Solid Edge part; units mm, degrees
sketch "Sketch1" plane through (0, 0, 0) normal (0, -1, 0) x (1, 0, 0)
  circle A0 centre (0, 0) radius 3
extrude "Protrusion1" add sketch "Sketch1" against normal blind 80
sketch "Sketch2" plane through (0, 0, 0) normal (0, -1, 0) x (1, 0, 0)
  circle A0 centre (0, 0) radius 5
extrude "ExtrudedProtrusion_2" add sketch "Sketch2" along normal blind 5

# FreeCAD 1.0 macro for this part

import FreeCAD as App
import Part
import Sketcher

V = App.Vector

doc = App.newDocument("Part")
body = doc.addObject("PartDesign::Body", "Body")

# Sketch on XZ plane
sketch1 = body.newObject("Sketcher::SketchObject", "Sketch")
sketch1.AttachmentSupport = (doc.getObject("XZ_Plane"), [""])
sketch1.MapMode = "FlatFace"
sketch1.addGeometry(Part.Circle(V(0, 0, 0), V(0, 0, 1), 3), False)
sketch1.addConstraint(Sketcher.Constraint("Coincident", 0, 3, -1, 1))
sketch1.addConstraint(Sketcher.Constraint("Diameter", 0, 6.0))
pad1 = body.newObject("PartDesign::Pad", "Pad")
pad1.Profile = sketch1
pad1.Length = 80
pad1.Reversed = True

# Sketch on XZ plane
sketch2 = body.newObject("Sketcher::SketchObject", "Sketch001")
sketch2.AttachmentSupport = (doc.getObject("XZ_Plane"), [""])
sketch2.MapMode = "FlatFace"
sketch2.addGeometry(Part.Circle(V(0, 0, 0), V(0, 0, 1), 5), False)
sketch2.addConstraint(Sketcher.Constraint("Coincident", 0, 3, -1, 1))
sketch2.addConstraint(Sketcher.Constraint("Diameter", 0, 10.0))
pad2 = body.newObject("PartDesign::Pad", "Pad001")
pad2.Profile = sketch2
pad2.Length = 5

doc.recompute()
